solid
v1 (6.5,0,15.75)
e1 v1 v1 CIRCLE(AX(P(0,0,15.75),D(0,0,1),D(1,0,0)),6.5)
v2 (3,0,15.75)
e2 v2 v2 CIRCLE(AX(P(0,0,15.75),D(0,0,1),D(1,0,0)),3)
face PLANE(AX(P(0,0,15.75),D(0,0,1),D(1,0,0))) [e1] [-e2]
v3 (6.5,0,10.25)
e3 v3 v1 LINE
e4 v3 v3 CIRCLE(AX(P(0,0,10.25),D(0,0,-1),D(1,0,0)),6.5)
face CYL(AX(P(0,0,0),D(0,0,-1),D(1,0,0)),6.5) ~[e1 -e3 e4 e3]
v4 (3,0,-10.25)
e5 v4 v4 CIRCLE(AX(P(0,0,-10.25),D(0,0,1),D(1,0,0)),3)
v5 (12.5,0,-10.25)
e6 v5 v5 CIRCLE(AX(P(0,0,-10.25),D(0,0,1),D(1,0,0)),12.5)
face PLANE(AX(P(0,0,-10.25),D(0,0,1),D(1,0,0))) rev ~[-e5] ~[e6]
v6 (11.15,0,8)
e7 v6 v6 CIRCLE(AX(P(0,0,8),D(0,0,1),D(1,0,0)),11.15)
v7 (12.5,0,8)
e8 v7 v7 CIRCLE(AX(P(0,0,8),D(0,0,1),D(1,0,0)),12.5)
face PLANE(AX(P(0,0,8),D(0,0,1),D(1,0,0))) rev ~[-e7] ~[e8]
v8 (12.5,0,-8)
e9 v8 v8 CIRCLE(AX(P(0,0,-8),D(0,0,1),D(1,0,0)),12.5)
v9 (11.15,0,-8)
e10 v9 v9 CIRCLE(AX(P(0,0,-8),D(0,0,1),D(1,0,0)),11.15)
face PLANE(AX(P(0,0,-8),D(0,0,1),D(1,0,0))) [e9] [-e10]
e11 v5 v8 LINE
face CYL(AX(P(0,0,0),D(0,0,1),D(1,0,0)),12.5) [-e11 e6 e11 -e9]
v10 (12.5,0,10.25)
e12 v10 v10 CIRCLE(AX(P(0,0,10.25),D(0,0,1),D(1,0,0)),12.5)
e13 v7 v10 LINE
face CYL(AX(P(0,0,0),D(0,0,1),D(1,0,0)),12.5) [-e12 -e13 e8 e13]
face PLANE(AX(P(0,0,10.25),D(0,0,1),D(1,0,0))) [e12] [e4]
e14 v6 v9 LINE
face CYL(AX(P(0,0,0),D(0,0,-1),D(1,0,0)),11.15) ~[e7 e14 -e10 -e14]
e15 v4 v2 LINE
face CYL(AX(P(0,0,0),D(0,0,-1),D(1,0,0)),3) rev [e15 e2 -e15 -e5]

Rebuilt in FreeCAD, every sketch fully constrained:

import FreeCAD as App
import Part
import Sketcher

V = App.Vector

doc = App.newDocument("Part")
body = doc.addObject("PartDesign::Body", "Body")

sketch1 = body.newObject("Sketcher::SketchObject", "Sketch")
sketch1.AttachmentSupport = (doc.getObject("XY_Plane"), [""])
sketch1.MapMode = "FlatFace"
sketch1.addGeometry(Part.Circle(V(0, 0, 0), V(0, 0, 1), 12.5), False)
sketch1.addGeometry(Part.Circle(V(0, 0, 0), V(0, 0, 1), 3), False)
sketch1.addConstraint(Sketcher.Constraint("Coincident", 0, 3, -1, 1))
sketch1.addConstraint(Sketcher.Constraint("Coincident", 1, 3, -1, 1))
sketch1.addConstraint(Sketcher.Constraint("Diameter", 0, 25.0))
sketch1.addConstraint(Sketcher.Constraint("Diameter", 1, 6.0))
pad1 = body.newObject("PartDesign::Pad", "Pad")
pad1.Profile = sketch1
pad1.Length = 20.5
pad1.Midplane = True

sketch2 = body.newObject("Sketcher::SketchObject", "Sketch001")
sketch2.AttachmentSupport = (doc.getObject("XY_Plane"), [""])
sketch2.MapMode = "FlatFace"
sketch2.addGeometry(Part.Circle(V(0, 0, 0), V(0, 0, 1), 12), False)
sketch2.addGeometry(Part.Circle(V(0, 0, 0), V(0, 0, 1), 11), False)
sketch2.addConstraint(Sketcher.Constraint("Coincident", 0, 3, -1, 1))
sketch2.addConstraint(Sketcher.Constraint("Coincident", 1, 3, -1, 1))
sketch2.addConstraint(Sketcher.Constraint("Diameter", 0, 25.0))
sketch2.addConstraint(Sketcher.Constraint("Diameter", 1, 22.3))
pocket1 = body.newObject("PartDesign::Pocket", "Pocket")
pocket1.Profile = sketch2
pocket1.Length = 16
pocket1.Midplane = True

sketch3 = body.newObject("Sketcher::SketchObject", "Sketch002")
sketch3.AttachmentSupport = (doc.getObject("XY_Plane"), [""])
sketch3.MapMode = "FlatFace"
sketch3.addGeometry(Part.Circle(V(0, 0, 0), V(0, 0, 1), 6.5), False)
sketch3.addGeometry(Part.Circle(V(0, 0, 0), V(0, 0, 1), 3), False)
sketch3.addConstraint(Sketcher.Constraint("Coincident", 0, 3, -1, 1))
sketch3.addConstraint(Sketcher.Constraint("Coincident", 1, 3, -1, 1))
sketch3.addConstraint(Sketcher.Constraint("Diameter", 0, 13.0))
sketch3.addConstraint(Sketcher.Constraint("Diameter", 1, 6.0))
pad2 = body.newObject("PartDesign::Pad", "Pad001")
pad2.Profile = sketch3
pad2.Length = 15.75

doc.recompute()
